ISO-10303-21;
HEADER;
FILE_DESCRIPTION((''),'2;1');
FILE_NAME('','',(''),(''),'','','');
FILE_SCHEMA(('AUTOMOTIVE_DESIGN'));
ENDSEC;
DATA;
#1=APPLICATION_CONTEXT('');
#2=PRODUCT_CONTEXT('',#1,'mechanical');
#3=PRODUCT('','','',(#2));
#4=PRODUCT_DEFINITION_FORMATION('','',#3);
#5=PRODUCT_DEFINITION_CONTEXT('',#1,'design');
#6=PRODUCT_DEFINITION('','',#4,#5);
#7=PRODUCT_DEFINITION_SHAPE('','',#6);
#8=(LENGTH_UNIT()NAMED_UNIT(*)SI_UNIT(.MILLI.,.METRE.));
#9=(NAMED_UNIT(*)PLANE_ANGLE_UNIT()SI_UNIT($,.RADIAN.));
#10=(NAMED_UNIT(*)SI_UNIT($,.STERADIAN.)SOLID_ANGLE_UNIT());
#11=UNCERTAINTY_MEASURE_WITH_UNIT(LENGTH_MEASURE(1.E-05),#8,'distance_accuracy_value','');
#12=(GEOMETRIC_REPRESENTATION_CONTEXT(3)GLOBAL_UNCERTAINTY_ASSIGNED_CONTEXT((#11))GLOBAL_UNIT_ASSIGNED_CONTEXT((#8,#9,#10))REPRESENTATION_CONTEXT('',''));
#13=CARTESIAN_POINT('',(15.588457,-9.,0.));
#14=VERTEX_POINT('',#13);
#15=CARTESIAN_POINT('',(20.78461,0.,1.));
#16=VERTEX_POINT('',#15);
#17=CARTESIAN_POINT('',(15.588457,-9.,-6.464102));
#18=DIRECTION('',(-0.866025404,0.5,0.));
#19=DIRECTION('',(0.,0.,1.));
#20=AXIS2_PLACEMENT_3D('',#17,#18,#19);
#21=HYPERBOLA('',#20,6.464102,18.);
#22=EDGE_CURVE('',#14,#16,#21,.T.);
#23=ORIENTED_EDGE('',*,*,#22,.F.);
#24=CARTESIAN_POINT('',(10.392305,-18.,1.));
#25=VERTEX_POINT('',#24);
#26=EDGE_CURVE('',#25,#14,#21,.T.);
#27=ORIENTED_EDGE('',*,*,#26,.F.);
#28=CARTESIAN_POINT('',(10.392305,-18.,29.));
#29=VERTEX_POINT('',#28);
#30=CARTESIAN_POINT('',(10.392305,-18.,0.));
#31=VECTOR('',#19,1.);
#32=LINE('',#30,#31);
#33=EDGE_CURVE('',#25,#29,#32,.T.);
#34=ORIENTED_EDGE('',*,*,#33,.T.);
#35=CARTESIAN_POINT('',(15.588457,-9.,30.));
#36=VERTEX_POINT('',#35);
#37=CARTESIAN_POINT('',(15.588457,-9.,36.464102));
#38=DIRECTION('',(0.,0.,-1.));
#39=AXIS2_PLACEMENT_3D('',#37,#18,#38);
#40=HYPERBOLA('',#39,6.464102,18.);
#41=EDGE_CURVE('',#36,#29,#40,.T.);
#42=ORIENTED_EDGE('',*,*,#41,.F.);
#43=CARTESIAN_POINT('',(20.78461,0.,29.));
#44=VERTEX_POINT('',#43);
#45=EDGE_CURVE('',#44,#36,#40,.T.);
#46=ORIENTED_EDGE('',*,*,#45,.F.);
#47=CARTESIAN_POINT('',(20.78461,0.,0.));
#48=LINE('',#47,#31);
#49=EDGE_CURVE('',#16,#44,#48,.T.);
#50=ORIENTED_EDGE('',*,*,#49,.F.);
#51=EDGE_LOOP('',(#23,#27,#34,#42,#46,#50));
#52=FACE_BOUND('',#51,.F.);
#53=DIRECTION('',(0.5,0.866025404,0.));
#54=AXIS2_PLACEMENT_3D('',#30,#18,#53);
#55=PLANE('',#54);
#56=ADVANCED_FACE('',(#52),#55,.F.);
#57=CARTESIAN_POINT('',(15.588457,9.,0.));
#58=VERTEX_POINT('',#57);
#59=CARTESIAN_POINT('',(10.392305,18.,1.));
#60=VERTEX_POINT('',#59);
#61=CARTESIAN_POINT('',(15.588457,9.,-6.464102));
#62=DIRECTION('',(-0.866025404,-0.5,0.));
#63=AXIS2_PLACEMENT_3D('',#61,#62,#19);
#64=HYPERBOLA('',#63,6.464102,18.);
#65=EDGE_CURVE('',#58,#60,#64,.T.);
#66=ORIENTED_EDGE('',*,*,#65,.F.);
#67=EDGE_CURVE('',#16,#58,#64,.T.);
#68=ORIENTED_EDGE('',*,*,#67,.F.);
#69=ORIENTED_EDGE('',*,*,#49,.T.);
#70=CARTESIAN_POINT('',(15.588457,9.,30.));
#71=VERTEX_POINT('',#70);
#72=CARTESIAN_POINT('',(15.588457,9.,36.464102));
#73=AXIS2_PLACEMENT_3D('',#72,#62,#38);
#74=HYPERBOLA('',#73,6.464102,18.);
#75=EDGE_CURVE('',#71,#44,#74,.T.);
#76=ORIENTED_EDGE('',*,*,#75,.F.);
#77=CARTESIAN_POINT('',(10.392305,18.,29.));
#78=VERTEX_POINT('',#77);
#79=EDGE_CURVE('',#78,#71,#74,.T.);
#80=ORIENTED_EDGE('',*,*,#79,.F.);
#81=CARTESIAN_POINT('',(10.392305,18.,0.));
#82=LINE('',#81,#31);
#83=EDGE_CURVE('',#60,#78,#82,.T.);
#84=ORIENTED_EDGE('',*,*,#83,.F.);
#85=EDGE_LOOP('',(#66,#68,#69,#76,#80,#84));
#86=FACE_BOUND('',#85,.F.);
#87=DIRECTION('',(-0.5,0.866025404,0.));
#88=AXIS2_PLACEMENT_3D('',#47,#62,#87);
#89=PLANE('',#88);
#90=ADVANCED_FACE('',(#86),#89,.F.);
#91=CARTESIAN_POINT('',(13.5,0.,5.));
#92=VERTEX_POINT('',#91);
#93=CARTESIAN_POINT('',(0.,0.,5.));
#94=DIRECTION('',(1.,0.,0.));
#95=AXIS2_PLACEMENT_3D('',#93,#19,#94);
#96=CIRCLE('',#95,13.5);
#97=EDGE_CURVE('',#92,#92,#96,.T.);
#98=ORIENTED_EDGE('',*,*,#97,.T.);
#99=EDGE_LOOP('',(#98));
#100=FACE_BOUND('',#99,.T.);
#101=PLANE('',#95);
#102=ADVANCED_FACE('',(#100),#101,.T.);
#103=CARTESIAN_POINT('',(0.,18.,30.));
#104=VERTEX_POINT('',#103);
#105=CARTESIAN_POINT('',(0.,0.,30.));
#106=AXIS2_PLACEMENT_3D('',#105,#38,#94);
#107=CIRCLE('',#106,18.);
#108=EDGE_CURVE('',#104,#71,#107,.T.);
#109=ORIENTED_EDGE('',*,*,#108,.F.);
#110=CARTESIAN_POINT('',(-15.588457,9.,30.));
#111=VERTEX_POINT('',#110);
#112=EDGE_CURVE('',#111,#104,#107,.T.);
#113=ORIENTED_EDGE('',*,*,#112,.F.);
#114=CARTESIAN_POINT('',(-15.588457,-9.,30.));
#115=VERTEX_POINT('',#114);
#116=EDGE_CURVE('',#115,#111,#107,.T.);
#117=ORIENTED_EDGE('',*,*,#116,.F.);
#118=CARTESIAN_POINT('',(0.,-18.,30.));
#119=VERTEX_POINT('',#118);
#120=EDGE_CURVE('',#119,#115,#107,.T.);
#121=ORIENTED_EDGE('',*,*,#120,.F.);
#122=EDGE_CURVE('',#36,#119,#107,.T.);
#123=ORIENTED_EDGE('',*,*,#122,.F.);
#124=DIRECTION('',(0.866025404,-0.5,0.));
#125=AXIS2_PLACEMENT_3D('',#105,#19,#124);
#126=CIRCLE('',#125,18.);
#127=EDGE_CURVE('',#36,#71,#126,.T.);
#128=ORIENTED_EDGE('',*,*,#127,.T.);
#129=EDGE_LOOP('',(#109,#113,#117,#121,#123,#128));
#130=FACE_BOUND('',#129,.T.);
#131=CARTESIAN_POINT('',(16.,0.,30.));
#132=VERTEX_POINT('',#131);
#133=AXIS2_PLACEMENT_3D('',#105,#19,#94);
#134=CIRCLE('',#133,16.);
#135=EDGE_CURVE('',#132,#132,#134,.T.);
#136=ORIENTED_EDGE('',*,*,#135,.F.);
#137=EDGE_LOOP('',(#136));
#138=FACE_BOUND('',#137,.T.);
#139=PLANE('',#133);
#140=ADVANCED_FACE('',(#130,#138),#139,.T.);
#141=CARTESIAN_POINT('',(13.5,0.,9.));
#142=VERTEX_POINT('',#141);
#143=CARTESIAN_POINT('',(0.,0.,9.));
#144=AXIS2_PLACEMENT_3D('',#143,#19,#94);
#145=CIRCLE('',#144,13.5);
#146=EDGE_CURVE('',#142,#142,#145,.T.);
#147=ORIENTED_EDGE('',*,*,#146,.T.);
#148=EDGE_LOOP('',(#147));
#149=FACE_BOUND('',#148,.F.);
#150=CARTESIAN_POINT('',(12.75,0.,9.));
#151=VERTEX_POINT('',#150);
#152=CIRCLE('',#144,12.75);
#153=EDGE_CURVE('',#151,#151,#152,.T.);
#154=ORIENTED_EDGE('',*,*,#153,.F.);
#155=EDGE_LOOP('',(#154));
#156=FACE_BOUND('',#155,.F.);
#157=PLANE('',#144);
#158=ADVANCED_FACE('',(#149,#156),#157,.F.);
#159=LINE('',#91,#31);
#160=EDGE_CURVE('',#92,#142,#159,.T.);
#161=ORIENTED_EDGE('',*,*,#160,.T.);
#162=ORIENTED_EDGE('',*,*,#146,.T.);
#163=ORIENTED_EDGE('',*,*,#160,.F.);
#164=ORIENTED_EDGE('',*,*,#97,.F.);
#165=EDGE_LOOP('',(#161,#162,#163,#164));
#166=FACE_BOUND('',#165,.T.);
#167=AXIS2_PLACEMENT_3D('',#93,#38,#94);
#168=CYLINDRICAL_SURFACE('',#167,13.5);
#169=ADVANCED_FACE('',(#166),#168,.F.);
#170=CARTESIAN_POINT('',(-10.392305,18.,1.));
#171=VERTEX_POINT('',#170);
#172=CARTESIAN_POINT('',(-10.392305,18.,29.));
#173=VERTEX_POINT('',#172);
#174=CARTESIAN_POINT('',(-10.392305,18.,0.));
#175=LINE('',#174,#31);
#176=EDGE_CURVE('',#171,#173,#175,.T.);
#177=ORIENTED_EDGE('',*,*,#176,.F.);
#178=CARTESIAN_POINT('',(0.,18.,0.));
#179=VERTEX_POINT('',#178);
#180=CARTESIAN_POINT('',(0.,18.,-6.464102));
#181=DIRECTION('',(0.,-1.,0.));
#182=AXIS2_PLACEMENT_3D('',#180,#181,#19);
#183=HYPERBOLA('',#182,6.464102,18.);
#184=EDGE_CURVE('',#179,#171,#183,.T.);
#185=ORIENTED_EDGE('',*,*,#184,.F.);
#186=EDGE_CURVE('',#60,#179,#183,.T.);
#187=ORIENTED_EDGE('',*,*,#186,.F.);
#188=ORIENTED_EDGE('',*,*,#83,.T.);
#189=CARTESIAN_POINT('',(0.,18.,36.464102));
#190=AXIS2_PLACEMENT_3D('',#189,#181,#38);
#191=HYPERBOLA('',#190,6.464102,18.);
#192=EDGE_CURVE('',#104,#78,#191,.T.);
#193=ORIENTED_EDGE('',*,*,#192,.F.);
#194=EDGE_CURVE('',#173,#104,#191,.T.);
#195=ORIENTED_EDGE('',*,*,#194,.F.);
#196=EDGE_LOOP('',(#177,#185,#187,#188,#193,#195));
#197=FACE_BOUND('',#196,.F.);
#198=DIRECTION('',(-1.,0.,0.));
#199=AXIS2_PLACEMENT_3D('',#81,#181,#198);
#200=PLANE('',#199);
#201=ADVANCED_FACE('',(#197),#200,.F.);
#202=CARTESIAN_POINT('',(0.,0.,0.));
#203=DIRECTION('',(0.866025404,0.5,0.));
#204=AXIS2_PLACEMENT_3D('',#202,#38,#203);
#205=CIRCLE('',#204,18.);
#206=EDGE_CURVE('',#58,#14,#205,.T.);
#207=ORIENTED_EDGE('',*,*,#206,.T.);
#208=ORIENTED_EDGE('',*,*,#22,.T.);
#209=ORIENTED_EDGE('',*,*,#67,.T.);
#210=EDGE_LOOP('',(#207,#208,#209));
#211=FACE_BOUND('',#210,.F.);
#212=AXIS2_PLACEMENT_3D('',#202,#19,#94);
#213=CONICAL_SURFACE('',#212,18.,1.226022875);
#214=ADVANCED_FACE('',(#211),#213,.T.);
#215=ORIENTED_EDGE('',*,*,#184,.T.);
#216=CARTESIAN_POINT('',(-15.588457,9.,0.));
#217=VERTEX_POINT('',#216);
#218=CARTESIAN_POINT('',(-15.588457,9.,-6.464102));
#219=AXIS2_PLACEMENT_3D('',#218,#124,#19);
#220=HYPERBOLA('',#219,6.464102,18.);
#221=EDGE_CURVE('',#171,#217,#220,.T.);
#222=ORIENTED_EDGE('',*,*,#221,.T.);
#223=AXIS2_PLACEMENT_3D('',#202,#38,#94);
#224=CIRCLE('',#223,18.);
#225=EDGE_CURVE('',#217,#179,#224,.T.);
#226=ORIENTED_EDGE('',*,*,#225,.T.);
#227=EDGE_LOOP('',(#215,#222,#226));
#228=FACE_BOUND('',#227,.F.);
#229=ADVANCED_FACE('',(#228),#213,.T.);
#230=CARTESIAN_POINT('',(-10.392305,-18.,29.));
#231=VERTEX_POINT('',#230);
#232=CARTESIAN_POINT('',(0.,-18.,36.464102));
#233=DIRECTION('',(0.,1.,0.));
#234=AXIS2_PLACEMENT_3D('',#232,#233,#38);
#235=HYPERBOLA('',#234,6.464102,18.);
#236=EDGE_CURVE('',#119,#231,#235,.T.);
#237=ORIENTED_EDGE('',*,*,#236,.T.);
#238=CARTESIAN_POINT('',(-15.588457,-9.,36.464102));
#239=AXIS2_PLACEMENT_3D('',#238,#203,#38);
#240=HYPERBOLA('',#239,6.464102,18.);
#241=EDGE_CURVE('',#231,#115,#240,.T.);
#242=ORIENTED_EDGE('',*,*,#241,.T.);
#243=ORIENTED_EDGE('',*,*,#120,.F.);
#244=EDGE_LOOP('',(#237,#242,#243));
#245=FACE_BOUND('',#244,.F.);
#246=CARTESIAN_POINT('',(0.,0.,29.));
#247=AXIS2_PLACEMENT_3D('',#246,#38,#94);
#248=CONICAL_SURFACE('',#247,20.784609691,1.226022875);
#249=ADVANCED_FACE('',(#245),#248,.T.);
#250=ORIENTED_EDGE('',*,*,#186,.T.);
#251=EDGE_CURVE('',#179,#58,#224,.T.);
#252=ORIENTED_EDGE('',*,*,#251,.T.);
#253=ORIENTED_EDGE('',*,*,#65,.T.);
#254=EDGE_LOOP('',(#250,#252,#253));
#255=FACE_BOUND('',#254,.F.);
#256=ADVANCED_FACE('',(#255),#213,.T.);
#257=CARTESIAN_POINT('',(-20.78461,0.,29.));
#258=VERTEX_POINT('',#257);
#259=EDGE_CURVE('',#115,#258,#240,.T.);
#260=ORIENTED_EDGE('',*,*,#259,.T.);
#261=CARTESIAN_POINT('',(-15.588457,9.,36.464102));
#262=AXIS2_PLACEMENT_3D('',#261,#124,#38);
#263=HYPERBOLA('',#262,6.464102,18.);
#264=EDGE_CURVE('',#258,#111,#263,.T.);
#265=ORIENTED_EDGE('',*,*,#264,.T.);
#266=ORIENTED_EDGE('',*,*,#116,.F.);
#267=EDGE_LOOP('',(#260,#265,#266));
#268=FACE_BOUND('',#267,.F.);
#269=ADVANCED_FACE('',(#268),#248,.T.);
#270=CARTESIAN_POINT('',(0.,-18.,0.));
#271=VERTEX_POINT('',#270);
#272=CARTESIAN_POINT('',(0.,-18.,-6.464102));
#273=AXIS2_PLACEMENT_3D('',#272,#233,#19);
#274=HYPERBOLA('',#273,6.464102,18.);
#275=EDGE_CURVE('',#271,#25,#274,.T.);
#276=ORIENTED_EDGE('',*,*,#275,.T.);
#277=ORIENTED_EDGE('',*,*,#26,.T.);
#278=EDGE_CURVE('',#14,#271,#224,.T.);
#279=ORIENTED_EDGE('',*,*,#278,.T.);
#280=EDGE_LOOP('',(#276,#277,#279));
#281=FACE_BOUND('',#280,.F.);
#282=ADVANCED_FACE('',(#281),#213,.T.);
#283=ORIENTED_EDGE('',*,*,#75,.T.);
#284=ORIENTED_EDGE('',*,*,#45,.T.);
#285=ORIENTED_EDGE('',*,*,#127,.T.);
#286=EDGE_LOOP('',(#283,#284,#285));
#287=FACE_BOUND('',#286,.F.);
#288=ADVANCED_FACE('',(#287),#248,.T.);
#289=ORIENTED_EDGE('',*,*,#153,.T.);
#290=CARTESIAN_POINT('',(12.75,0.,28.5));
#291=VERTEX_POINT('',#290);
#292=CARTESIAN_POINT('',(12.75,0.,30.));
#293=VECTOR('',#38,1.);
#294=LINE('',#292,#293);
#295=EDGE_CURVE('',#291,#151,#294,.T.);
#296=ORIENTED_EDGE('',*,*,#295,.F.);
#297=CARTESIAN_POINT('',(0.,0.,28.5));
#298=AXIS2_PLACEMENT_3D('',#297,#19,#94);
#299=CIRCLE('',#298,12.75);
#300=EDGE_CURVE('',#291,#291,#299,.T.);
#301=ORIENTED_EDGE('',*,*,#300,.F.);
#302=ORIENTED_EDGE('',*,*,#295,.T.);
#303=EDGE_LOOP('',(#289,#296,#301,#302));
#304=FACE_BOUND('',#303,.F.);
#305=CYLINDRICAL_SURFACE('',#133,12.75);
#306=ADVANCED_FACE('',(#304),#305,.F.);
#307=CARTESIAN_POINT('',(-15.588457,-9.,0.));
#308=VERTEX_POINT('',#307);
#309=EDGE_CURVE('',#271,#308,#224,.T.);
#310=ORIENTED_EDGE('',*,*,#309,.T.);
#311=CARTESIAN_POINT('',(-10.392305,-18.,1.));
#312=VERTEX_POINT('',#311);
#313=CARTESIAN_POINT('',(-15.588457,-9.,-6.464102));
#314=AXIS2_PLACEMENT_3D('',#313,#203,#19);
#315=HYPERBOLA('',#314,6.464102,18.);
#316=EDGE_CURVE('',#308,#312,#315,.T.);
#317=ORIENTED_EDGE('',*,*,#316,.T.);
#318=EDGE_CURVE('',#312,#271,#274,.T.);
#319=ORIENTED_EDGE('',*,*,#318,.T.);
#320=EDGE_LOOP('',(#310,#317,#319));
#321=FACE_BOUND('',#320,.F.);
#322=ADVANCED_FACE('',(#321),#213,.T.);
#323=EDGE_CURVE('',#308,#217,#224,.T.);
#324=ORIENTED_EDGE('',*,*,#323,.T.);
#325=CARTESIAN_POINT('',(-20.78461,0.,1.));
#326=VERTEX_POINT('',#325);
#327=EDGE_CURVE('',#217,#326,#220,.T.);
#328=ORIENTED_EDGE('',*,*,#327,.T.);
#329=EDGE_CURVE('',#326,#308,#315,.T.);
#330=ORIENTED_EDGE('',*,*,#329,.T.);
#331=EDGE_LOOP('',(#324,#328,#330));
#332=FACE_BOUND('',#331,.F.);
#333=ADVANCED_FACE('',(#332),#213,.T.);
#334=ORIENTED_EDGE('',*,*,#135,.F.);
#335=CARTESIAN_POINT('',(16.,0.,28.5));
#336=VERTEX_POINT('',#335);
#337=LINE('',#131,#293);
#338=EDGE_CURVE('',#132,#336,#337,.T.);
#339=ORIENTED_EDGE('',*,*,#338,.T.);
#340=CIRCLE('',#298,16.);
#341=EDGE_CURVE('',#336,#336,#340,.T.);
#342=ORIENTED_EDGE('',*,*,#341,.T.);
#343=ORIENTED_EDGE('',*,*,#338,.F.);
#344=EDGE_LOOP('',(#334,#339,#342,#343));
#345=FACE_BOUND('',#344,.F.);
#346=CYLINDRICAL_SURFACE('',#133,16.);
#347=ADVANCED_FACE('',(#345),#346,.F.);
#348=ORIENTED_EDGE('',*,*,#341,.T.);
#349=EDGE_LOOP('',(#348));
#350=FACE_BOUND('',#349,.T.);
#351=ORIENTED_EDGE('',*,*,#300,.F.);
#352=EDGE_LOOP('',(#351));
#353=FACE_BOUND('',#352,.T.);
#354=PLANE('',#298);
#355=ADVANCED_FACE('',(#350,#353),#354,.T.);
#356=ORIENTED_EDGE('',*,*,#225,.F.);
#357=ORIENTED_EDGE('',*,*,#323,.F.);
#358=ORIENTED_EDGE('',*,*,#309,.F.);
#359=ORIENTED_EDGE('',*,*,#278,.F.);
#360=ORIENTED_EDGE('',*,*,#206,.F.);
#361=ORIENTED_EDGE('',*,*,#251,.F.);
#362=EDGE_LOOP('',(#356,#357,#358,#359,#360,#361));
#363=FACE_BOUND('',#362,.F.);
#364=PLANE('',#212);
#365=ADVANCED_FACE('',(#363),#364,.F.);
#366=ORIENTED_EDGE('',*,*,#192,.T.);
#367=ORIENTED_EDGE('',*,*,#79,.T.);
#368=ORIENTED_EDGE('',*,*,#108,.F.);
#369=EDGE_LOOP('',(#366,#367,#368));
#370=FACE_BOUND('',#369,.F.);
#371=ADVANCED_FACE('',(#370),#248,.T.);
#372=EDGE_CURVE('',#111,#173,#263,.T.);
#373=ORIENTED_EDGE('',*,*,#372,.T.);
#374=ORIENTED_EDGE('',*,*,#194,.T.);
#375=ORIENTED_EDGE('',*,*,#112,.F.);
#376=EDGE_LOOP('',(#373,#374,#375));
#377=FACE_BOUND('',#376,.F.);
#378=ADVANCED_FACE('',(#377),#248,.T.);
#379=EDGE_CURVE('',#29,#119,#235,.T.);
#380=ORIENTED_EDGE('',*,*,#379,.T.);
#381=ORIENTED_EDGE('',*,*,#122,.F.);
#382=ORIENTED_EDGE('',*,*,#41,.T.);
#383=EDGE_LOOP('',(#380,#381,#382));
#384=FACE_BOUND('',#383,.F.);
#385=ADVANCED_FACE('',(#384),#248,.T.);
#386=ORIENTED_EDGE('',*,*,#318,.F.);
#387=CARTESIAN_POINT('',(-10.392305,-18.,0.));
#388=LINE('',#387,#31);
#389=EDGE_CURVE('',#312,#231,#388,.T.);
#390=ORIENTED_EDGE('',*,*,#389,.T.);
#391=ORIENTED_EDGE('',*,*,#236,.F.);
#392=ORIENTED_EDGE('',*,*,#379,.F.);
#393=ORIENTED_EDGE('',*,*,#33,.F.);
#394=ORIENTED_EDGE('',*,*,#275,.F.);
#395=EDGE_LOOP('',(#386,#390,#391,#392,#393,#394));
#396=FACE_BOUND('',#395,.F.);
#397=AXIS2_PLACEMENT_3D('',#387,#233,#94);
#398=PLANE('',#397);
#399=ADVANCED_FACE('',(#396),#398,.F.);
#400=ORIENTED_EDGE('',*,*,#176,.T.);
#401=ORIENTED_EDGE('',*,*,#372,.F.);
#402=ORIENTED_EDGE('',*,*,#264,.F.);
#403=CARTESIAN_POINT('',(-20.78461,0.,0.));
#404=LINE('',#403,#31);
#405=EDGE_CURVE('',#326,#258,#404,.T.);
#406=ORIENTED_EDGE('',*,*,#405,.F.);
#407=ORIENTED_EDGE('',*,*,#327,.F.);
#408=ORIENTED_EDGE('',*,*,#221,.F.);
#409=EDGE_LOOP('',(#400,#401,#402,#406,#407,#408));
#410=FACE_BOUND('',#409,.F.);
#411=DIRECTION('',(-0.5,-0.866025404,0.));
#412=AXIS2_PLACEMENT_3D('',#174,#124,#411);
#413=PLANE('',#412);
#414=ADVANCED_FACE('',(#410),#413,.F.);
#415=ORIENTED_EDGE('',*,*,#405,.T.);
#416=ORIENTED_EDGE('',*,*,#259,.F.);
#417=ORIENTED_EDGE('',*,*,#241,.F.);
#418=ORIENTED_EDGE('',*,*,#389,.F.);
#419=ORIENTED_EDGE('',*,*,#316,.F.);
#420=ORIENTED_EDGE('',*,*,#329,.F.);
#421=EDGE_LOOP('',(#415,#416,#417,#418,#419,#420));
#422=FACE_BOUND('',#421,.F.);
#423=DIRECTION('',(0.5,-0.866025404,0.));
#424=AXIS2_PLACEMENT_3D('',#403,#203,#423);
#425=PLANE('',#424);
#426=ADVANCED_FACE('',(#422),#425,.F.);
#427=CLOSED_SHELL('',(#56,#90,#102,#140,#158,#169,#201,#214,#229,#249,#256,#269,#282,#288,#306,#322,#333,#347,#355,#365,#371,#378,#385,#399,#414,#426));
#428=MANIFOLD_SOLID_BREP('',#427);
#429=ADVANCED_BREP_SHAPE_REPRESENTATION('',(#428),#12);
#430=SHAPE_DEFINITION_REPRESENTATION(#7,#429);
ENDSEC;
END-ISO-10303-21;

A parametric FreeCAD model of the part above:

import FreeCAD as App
import Part
import Sketcher
from FreeCAD import Vector
Q = App.Units.Quantity


def add_polygon(sketch, points):
    """Adds a closed chain of lines whose ends are joined by coincident constraints."""
    first, n = sketch.GeometryCount, len(points)
    for a, b in zip(points, points[1:] + points[:1]):
        sketch.addGeometry(Part.LineSegment(App.Vector(*a, 0), App.Vector(*b, 0)), False)
    for i in range(n):
        sketch.addConstraint(Sketcher.Constraint("Coincident", first + i, 2, first + (i + 1) % n, 1))

doc = App.newDocument("Part")
body = doc.addObject("PartDesign::Body", "Body")

# Sketch on XY plane
sketch1 = body.newObject("Sketcher::SketchObject", "Sketch")
sketch1.AttachmentSupport = (doc.getObject("XY_Plane"), [""])
sketch1.MapMode = "FlatFace"
add_polygon(sketch1, [(10, 18), (-10, 18), (-21, 0), (-10, -18), (10, -18), (21, 0)])  # lines 0-5
sketch1.addConstraint([
    Sketcher.Constraint("Horizontal", 0),
    Sketcher.Constraint("Horizontal", 3),
    Sketcher.Constraint("Symmetric", 0, 2, 3, 2, -1, 1),
    Sketcher.Constraint("Symmetric", 1, 2, 4, 2, -1, 1),
    Sketcher.Constraint("PointOnObject", 1, 2, -1),
    Sketcher.Constraint("Parallel", 2, 5),
    Sketcher.Constraint("Vertical", 0, 2, 2, 2),
    Sketcher.Constraint("Angle", 1, Q("-120 deg")),
    Sketcher.Constraint("DistanceY", -1, 1, 0, 2, Q("18 mm")),
    Sketcher.Constraint("DistanceX", 0, 2, 0, 1, Q("20.78461 mm")),
])
pad1 = body.newObject("PartDesign::Pad", "Pad")
pad1.Profile = sketch1
pad1.Length = 30

# Sketch on XY plane
sketch2 = body.newObject("Sketcher::SketchObject", "Sketch001")
sketch2.AttachmentSupport = (doc.getObject("XY_Plane"), [""])
sketch2.MapMode = "FlatFace"
sketch2.AttachmentOffset = App.Placement(Vector(0, 0, 30), App.Rotation())
sketch2.addGeometry(Part.Circle(Vector(0, 0, 0), Vector(0, 0, 1), 13), False)
sketch2.addConstraint([
    Sketcher.Constraint("Coincident", 0, 3, -1, 1),
    Sketcher.Constraint("Diameter", 0, Q("25.5 mm")),
])
pocket1 = body.newObject("PartDesign::Pocket", "Pocket")
pocket1.Profile = sketch2
pocket1.Length = 25

# Sketch on XY plane
sketch3 = body.newObject("Sketcher::SketchObject", "Sketch002")
sketch3.AttachmentSupport = (doc.getObject("XY_Plane"), [""])
sketch3.MapMode = "FlatFace"
sketch3.AttachmentOffset = App.Placement(Vector(0, 0, 5), App.Rotation())
sketch3.addGeometry(Part.Circle(Vector(0, 0, 0), Vector(0, 0, 1), 14), False)
sketch3.addConstraint([
    Sketcher.Constraint("Coincident", 0, 3, -1, 1),
    Sketcher.Constraint("Diameter", 0, Q("27 mm")),
])
pocket2 = body.newObject("PartDesign::Pocket", "Pocket001")
pocket2.Profile = sketch3
pocket2.Length = 4
pocket2.Reversed = True

# Sketch on XY plane
sketch4 = body.newObject("Sketcher::SketchObject", "Sketch003")
sketch4.AttachmentSupport = (doc.getObject("XY_Plane"), [""])
sketch4.MapMode = "FlatFace"
sketch4.AttachmentOffset = App.Placement(Vector(0, 0, 30), App.Rotation())
sketch4.addGeometry(Part.Circle(Vector(0, 0, 0), Vector(0, 0, 1), 16), False)
sketch4.addConstraint([
    Sketcher.Constraint("Coincident", 0, 3, -1, 1),
    Sketcher.Constraint("Diameter", 0, Q("32 mm")),
])
pocket3 = body.newObject("PartDesign::Pocket", "Pocket002")
pocket3.Profile = sketch4
pocket3.Length = 1.5

# Sketch on XZ plane
sketch5 = body.newObject("Sketcher::SketchObject", "Sketch004")
sketch5.AttachmentSupport = (doc.getObject("XZ_Plane"), [""])
sketch5.MapMode = "FlatFace"
add_polygon(sketch5, [(20.8, 30), (20.8, 29), (18, 30)])  # lines 0-2
add_polygon(sketch5, [(20.8, 0), (18, 0), (20.8, 1)])  # lines 3-5
sketch5.addConstraint([
    Sketcher.Constraint("Vertical", 0),
    Sketcher.Constraint("Horizontal", 2),
    Sketcher.Constraint("Horizontal", 3),
    Sketcher.Constraint("Vertical", 5),
    Sketcher.Constraint("PointOnObject", 3, 2, -1),
    Sketcher.Constraint("Vertical", 1, 2, 3, 2),
    Sketcher.Constraint("Vertical", 2, 2, 4, 2),
    Sketcher.Constraint("Equal", 0, 5),
    Sketcher.Constraint("DistanceY", 0, 2, 0, 1, Q("1 mm")),
    Sketcher.Constraint("DistanceY", -1, 1, 0, 2, Q("29 mm")),
    Sketcher.Constraint("DistanceX", -1, 1, 1, 2, Q("18 mm")),
    Sketcher.Constraint("DistanceX", 2, 1, 2, 2, Q("2.78461 mm")),
])
groove = body.newObject("PartDesign::Groove", "Groove")
groove.Profile = sketch5
groove.ReferenceAxis = (sketch5, ["V_Axis"])
groove.Angle = 360

doc.recompute()
